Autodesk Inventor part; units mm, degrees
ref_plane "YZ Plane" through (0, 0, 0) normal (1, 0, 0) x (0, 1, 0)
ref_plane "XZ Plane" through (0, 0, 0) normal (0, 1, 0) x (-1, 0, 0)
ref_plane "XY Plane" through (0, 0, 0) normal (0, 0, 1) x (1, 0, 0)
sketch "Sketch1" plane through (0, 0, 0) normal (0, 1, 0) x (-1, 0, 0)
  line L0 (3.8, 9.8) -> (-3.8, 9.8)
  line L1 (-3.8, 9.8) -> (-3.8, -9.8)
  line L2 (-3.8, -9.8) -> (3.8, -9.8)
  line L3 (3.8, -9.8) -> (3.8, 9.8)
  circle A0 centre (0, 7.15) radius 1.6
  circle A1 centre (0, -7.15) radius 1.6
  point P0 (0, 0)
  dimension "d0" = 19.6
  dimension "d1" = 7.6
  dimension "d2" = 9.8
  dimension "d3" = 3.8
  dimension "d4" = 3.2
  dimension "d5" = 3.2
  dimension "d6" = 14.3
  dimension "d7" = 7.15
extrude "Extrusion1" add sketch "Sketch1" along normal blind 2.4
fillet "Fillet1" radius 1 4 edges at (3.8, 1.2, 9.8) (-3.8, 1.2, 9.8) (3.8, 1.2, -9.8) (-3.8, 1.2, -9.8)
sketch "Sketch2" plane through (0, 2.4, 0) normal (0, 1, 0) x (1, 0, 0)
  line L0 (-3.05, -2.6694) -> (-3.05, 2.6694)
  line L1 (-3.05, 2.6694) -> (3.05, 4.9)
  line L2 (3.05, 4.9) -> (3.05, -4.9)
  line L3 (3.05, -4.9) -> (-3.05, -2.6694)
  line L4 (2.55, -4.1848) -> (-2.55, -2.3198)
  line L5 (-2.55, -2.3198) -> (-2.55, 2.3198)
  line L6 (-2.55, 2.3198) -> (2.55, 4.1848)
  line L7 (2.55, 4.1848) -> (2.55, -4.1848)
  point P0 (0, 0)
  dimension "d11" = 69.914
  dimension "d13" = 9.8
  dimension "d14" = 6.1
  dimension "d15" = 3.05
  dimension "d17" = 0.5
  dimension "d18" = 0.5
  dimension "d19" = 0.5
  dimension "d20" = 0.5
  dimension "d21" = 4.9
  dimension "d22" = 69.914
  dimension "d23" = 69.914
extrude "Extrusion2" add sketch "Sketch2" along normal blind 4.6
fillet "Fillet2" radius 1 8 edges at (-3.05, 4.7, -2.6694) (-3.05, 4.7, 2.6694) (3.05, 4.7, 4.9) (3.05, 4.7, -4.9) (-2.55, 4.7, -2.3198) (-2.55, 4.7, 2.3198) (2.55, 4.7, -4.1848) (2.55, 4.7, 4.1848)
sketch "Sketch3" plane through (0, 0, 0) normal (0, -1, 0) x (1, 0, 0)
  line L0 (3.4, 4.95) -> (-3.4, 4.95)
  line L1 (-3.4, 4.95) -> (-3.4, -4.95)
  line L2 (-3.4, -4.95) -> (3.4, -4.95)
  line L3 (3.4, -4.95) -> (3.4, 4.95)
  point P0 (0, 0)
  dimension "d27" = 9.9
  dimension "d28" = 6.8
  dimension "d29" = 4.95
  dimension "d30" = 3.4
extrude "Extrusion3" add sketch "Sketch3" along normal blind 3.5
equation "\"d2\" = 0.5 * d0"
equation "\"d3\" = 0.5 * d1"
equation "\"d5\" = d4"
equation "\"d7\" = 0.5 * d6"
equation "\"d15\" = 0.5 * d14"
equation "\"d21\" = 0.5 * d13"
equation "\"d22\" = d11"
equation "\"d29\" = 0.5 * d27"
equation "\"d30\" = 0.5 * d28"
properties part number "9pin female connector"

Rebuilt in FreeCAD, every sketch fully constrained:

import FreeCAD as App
import Part
import Sketcher
from FreeCAD import Vector


def edges_at(feature, points):
    """Names of the edges that pass closest to the given points."""
    edges = feature.Shape.Edges
    near = lambda p: min(range(len(edges)), key=lambda i: edges[i].distToShape(Part.Vertex(*p))[0])
    return sorted({f"Edge{near(p) + 1}" for p in points})


def add_polygon(sketch, points):
    """Adds a closed chain of lines whose ends are joined by coincident constraints."""
    first, n = sketch.GeometryCount, len(points)
    for a, b in zip(points, points[1:] + points[:1]):
        sketch.addGeometry(Part.LineSegment(App.Vector(*a, 0), App.Vector(*b, 0)), False)
    for i in range(n):
        sketch.addConstraint(Sketcher.Constraint("Coincident", first + i, 2, first + (i + 1) % n, 1))

doc = App.newDocument("Part")
body = doc.addObject("PartDesign::Body", "Body")

sketch1 = body.newObject("Sketcher::SketchObject", "Sketch")
sketch1.AttachmentSupport = (doc.getObject("XZ_Plane"), [""])
sketch1.MapMode = "FlatFace"
add_polygon(sketch1, [(-3.8, -9.8), (-3.8, 9.8), (3.8, 9.8), (3.8, -9.8)])
sketch1.addGeometry(Part.Circle(Vector(0, -7.15, 0), Vector(0, 0, 1), 1.6), False)
sketch1.addGeometry(Part.Circle(Vector(0, 7.15, 0), Vector(0, 0, 1), 1.6), False)
sketch1.addConstraint([
    Sketcher.Constraint("Vertical", 0),
    Sketcher.Constraint("Horizontal", 1),
    Sketcher.Constraint("Vertical", 2),
    Sketcher.Constraint("Horizontal", 3),
    Sketcher.Constraint("Equal", 4, 5),
    Sketcher.Constraint("Symmetric", 4, 3, 5, 3, -1, 1),
    Sketcher.Constraint("Symmetric", 0, 2, 2, 2, -1, 1),
    Sketcher.Constraint("PointOnObject", 4, 3, -2),
    Sketcher.Constraint("Diameter", 4, 3.2),
    Sketcher.Constraint("DistanceX", 1, 1, 1, 2, 7.6),
    Sketcher.Constraint("DistanceY", 0, 1, 0, 2, 19.6),
    Sketcher.Constraint("DistanceY", 4, 3, 5, 3, 14.3),
])
pad1 = body.newObject("PartDesign::Pad", "Pad")
pad1.Profile = sketch1
pad1.Length = 2.4
pad1.Reversed = True
doc.recompute()

fillet = body.newObject("PartDesign::Fillet", "Fillet")
fillet.Base = (pad1, edges_at(pad1, [
    (3.8, 1.2, 9.8),
    (-3.8, 1.2, 9.8),
    (3.8, 1.2, -9.8),
    (-3.8, 1.2, -9.8),
]))
fillet.Radius = 1

sketch2 = body.newObject("Sketcher::SketchObject", "Sketch001")
sketch2.AttachmentSupport = (doc.getObject("XZ_Plane"), [""])
sketch2.MapMode = "FlatFace"
sketch2.AttachmentOffset = App.Placement(Vector(0, 0, -2.4), App.Rotation())
add_polygon(sketch2, [(-3.05, -2.6694), (-3.05, 2.6694), (3.05, 4.9), (3.05, -4.9)])
add_polygon(sketch2, [(2.55, -4.1848), (2.55, 4.1848), (-2.55, 2.3198), (-2.55, -2.3198)])
sketch2.addConstraint([
    Sketcher.Constraint("Vertical", 0),
    Sketcher.Constraint("Vertical", 2),
    Sketcher.Constraint("Vertical", 4),
    Sketcher.Constraint("Vertical", 6),
    Sketcher.Constraint("Parallel", 1, 5),
    Sketcher.Constraint("Parallel", 3, 7),
    Sketcher.Constraint("Equal", 1, 3),
    Sketcher.Constraint("DistanceY", 2, 2, 2, 1, 9.8),
    Sketcher.Constraint("DistanceY", -1, 1, 1, 2, 4.9),
    Sketcher.Constraint("DistanceX", 0, 2, 1, 2, 6.1),
    Sketcher.Constraint("DistanceX", 4, 2, 1, 2, 0.5),
    Sketcher.Constraint("DistanceX", 0, 2, 5, 2, 0.5),
    Sketcher.Constraint("DistanceX", 0, 2, -1, 1, 3.05),
    Sketcher.Constraint("Distance", 1, 6.495),
    Sketcher.Constraint("DistanceY", 4, 1, 4, 2, 8.3696),
    Sketcher.Constraint("DistanceY", -1, 1, 4, 2, 4.1848),
])
pad2 = body.newObject("PartDesign::Pad", "Pad001")
pad2.Profile = sketch2
pad2.Length = 4.6
pad2.Reversed = True
doc.recompute()

fillet2 = body.newObject("PartDesign::Fillet", "Fillet001")
fillet2.Base = (pad2, edges_at(pad2, [
    (-3.05, 4.7, -2.669),
    (-3.05, 4.7, 2.669),
    (3.05, 4.7, 4.9),
    (3.05, 4.7, -4.9),
    (-2.55, 4.7, -2.32),
    (-2.55, 4.7, 2.32),
    (2.55, 4.7, -4.185),
    (2.55, 4.7, 4.185),
]))
fillet2.Radius = 1

sketch3 = body.newObject("Sketcher::SketchObject", "Sketch002")
sketch3.AttachmentSupport = (doc.getObject("XZ_Plane"), [""])
sketch3.MapMode = "FlatFace"
add_polygon(sketch3, [(3.4, -4.95), (3.4, 4.95), (-3.4, 4.95), (-3.4, -4.95)])
sketch3.addConstraint([
    Sketcher.Constraint("Vertical", 0),
    Sketcher.Constraint("Horizontal", 1),
    Sketcher.Constraint("Vertical", 2),
    Sketcher.Constraint("Horizontal", 3),
    Sketcher.Constraint("Symmetric", 0, 2, 2, 2, -1, 1),
    Sketcher.Constraint("DistanceX", 1, 2, 1, 1, 6.8),
    Sketcher.Constraint("DistanceY", 0, 1, 0, 2, 9.9),
])
pad3 = body.newObject("PartDesign::Pad", "Pad002")
pad3.Profile = sketch3
pad3.Length = 3.5

doc.recompute()
